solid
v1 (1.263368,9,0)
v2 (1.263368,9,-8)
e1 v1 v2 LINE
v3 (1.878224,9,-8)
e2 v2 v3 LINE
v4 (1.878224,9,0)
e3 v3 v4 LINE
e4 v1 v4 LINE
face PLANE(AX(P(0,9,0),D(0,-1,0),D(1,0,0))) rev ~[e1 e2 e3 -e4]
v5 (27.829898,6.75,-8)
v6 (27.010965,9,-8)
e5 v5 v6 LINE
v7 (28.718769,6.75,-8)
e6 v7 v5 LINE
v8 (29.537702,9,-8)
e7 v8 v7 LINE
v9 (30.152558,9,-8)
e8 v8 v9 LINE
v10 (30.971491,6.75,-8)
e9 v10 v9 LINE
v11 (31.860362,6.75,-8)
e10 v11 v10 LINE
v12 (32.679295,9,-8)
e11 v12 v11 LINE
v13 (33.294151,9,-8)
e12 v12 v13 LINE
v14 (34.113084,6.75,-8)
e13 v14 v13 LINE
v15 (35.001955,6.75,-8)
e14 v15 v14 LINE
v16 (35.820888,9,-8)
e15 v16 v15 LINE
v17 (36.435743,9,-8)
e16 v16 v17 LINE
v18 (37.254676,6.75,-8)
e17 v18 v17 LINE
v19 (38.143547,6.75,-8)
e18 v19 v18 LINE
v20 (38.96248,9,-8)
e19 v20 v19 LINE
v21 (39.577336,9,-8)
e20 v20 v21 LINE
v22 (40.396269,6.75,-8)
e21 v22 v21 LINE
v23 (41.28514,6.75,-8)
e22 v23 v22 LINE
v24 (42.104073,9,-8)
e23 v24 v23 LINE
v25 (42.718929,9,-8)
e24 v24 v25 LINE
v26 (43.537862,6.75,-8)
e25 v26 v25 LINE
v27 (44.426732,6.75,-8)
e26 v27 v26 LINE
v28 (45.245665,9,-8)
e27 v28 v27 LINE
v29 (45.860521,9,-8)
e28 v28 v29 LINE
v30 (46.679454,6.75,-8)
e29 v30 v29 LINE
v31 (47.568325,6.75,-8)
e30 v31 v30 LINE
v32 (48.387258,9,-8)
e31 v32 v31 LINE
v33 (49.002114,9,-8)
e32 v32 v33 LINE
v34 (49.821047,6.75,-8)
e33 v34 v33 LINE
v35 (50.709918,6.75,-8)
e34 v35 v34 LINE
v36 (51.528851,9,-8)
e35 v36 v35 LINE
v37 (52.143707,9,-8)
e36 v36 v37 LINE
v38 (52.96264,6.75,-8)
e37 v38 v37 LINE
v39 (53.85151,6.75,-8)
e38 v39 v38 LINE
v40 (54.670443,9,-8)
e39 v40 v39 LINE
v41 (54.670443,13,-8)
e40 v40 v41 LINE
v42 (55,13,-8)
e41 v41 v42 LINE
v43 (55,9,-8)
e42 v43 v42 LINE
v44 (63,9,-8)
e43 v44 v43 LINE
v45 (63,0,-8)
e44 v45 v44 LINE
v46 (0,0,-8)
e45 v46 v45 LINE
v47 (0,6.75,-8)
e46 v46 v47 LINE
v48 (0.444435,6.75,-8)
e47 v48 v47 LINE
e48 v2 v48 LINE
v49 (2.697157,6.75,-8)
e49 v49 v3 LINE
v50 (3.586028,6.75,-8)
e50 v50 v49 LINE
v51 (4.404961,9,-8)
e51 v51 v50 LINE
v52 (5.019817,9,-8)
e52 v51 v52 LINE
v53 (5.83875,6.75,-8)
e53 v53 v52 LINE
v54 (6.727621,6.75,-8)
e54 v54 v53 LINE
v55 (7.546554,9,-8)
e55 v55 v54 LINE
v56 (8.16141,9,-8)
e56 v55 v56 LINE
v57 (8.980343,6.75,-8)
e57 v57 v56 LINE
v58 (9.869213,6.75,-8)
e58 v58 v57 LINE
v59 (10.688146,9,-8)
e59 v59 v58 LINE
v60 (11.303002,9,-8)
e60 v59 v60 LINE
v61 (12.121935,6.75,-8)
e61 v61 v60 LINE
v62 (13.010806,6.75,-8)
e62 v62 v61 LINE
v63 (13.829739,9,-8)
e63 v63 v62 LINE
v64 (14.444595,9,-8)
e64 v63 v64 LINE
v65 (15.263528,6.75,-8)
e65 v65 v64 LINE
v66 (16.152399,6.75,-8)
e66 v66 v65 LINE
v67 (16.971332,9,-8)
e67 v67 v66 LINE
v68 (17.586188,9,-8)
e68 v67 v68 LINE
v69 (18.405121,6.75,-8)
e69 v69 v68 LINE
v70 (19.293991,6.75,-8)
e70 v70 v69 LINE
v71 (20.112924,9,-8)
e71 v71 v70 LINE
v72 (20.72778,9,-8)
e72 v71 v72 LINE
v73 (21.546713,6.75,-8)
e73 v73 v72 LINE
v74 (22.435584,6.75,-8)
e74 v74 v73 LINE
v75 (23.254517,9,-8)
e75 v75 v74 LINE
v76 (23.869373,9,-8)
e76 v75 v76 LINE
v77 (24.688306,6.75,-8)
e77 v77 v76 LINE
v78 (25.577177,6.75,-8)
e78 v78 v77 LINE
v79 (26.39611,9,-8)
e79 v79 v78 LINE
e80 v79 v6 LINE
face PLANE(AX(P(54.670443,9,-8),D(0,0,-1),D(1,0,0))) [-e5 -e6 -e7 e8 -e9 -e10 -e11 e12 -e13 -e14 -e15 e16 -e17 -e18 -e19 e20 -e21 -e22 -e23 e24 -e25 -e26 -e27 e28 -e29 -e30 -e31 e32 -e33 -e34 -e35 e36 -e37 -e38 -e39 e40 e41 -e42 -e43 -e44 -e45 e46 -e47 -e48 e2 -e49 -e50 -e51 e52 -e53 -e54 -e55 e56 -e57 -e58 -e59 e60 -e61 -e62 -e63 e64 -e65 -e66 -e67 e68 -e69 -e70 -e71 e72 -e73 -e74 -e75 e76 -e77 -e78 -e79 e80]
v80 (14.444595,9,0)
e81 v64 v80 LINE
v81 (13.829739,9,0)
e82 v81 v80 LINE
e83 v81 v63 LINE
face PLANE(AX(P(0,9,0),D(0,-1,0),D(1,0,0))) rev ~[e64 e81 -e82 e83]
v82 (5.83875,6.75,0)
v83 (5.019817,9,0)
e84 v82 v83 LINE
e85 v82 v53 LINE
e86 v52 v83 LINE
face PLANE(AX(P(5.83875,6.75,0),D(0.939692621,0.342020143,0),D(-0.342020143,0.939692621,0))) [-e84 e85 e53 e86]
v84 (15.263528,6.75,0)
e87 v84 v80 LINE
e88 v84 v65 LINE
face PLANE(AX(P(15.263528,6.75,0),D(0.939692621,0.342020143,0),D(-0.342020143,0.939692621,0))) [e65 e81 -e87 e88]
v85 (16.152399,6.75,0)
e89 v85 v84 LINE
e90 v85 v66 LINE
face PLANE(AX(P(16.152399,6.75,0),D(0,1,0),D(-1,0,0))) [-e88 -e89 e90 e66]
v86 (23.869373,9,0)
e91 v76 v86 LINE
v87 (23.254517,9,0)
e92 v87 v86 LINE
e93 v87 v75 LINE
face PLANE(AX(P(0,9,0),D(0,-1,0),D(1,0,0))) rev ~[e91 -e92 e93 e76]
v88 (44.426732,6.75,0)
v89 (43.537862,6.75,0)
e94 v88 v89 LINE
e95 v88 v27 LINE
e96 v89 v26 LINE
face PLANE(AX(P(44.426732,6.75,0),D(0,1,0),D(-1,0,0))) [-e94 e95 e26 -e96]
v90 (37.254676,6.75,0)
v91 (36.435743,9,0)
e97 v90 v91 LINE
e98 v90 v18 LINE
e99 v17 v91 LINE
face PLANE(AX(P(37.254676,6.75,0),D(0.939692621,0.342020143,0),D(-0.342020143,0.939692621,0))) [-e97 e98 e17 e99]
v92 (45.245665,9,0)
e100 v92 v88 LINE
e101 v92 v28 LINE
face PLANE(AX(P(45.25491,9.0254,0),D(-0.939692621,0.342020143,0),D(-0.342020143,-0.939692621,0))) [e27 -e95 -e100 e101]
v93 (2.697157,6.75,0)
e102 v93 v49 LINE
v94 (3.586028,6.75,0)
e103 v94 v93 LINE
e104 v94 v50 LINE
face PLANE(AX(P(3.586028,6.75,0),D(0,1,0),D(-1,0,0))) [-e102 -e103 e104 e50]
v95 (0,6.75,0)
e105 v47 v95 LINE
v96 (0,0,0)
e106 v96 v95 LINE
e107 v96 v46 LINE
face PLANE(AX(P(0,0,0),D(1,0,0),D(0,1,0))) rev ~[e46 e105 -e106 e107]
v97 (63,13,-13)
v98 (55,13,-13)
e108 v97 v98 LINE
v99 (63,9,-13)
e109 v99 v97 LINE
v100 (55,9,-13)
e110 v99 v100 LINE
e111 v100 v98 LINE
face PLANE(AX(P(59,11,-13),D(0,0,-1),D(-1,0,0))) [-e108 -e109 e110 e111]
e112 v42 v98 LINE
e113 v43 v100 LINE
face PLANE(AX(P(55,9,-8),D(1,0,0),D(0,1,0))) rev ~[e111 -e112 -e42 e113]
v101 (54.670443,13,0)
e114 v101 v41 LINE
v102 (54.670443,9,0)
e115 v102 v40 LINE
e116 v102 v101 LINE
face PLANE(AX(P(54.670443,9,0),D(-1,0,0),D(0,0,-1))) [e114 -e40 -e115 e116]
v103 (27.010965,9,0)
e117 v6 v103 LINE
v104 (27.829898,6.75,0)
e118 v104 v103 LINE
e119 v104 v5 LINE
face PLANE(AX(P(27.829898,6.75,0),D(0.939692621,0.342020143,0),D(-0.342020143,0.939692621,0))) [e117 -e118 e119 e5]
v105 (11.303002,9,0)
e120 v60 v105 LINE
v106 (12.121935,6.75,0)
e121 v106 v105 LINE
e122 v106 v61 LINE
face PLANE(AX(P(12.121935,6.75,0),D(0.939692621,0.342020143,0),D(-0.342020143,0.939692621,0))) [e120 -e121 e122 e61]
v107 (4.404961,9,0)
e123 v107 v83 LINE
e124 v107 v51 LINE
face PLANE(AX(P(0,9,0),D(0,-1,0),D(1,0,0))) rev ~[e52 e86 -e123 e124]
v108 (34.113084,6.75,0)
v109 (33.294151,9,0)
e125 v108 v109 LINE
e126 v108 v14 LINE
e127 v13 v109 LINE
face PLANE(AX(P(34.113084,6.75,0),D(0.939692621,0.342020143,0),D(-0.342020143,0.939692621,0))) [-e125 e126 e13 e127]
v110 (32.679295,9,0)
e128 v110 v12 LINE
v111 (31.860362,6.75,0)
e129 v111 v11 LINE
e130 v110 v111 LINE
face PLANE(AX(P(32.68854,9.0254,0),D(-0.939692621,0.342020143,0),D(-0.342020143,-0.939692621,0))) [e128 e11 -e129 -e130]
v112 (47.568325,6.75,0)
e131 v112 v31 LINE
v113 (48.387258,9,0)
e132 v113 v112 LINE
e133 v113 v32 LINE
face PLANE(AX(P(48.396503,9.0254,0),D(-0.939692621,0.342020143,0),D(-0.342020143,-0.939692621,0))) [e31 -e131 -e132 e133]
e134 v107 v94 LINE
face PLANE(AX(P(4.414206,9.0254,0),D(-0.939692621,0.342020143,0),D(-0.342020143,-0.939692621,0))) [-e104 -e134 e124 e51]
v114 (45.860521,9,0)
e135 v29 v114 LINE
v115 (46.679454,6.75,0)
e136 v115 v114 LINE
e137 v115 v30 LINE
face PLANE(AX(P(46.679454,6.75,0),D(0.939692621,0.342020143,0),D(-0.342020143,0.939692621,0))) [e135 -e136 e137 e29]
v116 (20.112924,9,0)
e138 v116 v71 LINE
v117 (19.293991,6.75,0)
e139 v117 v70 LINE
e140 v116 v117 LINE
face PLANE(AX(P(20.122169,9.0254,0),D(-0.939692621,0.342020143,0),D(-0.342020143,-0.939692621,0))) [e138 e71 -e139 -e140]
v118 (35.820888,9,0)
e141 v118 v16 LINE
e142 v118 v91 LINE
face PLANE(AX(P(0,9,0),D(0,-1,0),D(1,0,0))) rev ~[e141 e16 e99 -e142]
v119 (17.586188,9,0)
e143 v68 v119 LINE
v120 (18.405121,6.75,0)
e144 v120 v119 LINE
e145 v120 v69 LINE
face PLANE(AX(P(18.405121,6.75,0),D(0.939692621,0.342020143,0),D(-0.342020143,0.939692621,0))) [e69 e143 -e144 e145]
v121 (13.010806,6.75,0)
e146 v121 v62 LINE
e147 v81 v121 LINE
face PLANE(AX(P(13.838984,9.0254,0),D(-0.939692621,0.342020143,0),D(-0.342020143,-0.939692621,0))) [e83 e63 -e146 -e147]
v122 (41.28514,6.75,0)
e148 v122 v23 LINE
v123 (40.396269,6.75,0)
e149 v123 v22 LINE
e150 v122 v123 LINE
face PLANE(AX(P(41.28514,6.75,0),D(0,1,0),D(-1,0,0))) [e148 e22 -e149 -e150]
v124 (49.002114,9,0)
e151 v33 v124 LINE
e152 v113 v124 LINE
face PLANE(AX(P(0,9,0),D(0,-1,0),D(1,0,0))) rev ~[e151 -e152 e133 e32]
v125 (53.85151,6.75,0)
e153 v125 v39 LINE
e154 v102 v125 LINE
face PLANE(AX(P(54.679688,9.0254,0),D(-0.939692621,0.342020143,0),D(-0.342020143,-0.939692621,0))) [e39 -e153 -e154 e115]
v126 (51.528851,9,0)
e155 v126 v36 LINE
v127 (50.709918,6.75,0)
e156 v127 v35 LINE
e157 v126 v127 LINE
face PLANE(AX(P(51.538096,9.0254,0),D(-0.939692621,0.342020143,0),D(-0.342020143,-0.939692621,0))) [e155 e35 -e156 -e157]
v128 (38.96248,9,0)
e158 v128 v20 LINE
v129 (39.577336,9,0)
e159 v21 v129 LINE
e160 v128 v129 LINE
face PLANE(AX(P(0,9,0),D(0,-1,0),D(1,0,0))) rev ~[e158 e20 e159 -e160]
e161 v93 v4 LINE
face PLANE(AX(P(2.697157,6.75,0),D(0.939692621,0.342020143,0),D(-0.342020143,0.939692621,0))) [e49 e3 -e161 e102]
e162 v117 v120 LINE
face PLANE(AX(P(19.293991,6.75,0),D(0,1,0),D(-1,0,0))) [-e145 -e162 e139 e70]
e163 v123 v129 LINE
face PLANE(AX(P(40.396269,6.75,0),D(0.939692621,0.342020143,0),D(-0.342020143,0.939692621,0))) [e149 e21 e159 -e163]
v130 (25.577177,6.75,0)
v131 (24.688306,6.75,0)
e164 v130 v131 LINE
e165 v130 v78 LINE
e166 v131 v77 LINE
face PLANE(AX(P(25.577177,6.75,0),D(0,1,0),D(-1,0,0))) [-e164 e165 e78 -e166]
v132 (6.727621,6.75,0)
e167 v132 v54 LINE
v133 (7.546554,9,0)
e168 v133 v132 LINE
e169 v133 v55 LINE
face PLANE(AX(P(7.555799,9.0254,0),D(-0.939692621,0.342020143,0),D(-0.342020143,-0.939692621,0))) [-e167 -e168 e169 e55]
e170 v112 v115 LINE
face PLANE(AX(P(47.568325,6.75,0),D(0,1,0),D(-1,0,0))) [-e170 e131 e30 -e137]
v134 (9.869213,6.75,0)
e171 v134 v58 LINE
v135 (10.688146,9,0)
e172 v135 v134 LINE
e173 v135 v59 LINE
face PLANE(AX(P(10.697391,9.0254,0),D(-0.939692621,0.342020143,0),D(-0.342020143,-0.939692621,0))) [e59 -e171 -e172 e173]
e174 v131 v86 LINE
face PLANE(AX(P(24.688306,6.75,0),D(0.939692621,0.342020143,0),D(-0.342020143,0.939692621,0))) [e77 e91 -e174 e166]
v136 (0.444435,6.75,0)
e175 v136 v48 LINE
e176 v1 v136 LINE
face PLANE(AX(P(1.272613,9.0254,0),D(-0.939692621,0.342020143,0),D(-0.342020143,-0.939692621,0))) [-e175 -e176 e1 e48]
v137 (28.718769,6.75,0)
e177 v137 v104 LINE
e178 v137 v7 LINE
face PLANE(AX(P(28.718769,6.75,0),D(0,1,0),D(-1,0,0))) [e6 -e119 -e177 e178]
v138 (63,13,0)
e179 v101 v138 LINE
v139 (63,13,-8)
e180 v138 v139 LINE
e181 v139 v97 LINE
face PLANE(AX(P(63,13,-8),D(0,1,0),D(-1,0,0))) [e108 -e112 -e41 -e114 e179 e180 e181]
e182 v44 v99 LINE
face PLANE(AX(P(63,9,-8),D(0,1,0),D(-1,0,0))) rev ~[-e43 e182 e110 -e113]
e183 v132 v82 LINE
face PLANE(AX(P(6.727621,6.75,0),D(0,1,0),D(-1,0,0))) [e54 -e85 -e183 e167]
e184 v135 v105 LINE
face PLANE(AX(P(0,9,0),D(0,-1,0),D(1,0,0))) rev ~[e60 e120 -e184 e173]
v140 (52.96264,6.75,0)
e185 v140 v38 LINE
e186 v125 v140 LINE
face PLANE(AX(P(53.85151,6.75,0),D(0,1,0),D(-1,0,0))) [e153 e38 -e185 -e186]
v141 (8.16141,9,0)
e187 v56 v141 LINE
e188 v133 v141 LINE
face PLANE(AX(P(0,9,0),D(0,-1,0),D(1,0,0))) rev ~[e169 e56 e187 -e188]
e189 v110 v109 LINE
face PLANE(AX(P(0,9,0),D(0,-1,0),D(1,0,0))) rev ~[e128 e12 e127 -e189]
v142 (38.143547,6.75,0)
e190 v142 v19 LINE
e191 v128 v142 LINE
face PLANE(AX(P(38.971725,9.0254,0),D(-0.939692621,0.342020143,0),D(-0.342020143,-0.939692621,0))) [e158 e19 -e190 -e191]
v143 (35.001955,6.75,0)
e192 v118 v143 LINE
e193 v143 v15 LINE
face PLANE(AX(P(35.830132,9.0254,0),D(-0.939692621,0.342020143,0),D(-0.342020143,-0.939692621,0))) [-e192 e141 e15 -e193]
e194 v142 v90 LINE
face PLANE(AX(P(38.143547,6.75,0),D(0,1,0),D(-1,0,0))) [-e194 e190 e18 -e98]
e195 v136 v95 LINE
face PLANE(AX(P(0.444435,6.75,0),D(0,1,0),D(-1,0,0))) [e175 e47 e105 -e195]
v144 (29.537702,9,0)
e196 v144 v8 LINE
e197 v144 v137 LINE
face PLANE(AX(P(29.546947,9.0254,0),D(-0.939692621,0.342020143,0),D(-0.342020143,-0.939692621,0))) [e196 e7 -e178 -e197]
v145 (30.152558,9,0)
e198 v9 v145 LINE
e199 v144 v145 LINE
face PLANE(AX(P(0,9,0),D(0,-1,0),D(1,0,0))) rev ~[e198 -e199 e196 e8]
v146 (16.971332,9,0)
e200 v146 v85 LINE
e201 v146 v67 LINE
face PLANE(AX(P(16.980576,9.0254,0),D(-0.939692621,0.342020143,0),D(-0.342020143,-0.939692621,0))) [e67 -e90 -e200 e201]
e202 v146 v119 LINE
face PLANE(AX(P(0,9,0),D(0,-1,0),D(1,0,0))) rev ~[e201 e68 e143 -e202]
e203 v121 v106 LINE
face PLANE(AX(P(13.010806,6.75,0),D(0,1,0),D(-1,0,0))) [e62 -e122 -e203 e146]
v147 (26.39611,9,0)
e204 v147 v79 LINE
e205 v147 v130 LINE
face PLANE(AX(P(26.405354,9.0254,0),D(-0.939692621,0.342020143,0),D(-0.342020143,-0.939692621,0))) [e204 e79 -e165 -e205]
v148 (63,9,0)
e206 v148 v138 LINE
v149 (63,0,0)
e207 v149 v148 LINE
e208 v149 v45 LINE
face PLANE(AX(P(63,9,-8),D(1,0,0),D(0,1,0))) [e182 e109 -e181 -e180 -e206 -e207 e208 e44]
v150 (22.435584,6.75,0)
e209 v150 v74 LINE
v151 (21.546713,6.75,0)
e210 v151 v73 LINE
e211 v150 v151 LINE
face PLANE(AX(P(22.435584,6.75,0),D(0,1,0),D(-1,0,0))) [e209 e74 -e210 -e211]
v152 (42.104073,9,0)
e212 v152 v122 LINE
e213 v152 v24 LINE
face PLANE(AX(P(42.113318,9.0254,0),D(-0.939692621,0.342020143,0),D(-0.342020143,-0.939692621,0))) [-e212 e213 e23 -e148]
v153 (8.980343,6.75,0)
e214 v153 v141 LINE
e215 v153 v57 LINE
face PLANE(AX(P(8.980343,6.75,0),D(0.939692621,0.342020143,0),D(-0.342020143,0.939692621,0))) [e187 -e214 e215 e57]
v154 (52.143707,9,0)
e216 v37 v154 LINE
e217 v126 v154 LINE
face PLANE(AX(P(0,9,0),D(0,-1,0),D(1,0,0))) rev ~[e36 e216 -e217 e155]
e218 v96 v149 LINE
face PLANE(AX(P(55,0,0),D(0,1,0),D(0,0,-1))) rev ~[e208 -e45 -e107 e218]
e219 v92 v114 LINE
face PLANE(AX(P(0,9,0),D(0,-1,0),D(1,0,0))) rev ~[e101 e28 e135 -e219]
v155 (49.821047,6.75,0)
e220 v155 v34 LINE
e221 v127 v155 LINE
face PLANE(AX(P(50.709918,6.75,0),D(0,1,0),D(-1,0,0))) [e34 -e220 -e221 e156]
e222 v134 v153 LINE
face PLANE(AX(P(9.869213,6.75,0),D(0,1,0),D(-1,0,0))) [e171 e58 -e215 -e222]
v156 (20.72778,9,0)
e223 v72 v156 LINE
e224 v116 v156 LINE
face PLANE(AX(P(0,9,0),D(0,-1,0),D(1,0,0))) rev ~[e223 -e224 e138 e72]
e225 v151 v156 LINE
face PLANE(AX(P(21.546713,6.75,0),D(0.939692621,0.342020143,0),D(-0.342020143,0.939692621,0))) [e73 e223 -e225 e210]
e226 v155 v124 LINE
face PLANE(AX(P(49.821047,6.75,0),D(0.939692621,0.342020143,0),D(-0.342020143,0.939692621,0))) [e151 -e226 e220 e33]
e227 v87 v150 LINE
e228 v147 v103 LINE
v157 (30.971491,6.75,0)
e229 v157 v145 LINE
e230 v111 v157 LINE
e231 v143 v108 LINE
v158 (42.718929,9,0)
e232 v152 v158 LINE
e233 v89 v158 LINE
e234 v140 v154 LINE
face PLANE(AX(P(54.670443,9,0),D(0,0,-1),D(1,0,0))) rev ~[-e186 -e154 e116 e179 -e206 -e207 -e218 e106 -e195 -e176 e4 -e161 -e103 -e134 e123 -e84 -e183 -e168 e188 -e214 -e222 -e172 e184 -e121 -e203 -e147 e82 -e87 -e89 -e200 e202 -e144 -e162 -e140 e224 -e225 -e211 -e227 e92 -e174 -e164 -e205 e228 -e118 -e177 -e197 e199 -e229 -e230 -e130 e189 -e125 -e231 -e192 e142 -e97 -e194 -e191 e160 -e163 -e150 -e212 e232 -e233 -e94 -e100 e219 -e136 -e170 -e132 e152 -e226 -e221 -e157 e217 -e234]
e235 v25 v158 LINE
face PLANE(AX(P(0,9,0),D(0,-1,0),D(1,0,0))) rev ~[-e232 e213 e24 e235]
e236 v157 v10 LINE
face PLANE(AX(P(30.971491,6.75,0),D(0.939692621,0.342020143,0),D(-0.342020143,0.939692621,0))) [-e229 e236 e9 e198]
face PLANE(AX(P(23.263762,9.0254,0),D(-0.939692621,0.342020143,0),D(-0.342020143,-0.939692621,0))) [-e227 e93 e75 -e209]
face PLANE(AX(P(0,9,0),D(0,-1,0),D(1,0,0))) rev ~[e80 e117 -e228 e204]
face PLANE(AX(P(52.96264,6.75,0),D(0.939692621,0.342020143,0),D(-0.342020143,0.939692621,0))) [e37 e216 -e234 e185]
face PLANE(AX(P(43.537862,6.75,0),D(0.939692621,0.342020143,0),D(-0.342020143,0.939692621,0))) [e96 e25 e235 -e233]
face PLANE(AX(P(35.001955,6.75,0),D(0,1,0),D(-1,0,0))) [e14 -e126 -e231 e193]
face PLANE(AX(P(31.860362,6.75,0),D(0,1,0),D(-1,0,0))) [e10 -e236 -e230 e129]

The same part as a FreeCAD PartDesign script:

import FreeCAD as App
import Part
import Sketcher
Q = App.Units.Quantity

doc = App.newDocument("Part")
body = doc.addObject("PartDesign::Body", "Body")

# Sketch on XY plane
sketch1 = doc.addObject("Sketcher::SketchObject", "Sketch")
body.addObject(sketch1)
sketch1.AttachmentSupport = (doc.XY_Plane, [""])
sketch1.MapMode = "FlatFace"
sketch1.addGeometry([
    Part.LineSegment(App.Vector(0, 9, 0), App.Vector(0, 0, 0)),
    Part.LineSegment(App.Vector(0, 0, 0), App.Vector(55, 0, 0)),
    Part.LineSegment(App.Vector(55, 0, 0), App.Vector(55, 9, 0)),
    Part.LineSegment(App.Vector(55, 9, 0), App.Vector(0, 9, 0)),
], False)
sketch1.addConstraint([
    Sketcher.Constraint("Coincident", 0, 2, 1, 1),
    Sketcher.Constraint("Coincident", 1, 2, 2, 1),
    Sketcher.Constraint("Coincident", 2, 2, 3, 1),
    Sketcher.Constraint("Coincident", 3, 2, 0, 1),
    Sketcher.Constraint("Vertical", 0),
    Sketcher.Constraint("Horizontal", 1),
    Sketcher.Constraint("Vertical", 2),
    Sketcher.Constraint("Horizontal", 3),
    Sketcher.Constraint("Coincident", 0, 2, -1, 1),
    Sketcher.Constraint("DistanceX", 1, 1, 1, 2, 55.0),
    Sketcher.Constraint("DistanceY", 0, 2, 0, 1, 9.0),
])
pad1 = doc.addObject("PartDesign::Pad", "Pad")
body.addObject(pad1)
pad1.Profile = sketch1
pad1.Length = 8
pad1.Reversed = True

# Sketch on XY plane
sketch2 = doc.addObject("Sketcher::SketchObject", "Sketch001")
body.addObject(sketch2)
sketch2.AttachmentSupport = (doc.XY_Plane, [""])
sketch2.MapMode = "FlatFace"
sketch2.addGeometry([
    Part.LineSegment(App.Vector(-0.444435, 6.75, 0), App.Vector(0.444435, 6.75, 0)),
    Part.LineSegment(App.Vector(0.444435, 6.75, 0), App.Vector(1.272613, 9.0254, 0)),
    Part.LineSegment(App.Vector(1.272613, 9.0254, 0), App.Vector(-1.272613, 9.0254, 0)),
    Part.LineSegment(App.Vector(-1.272613, 9.0254, 0), App.Vector(-0.444435, 6.75, 0)),
], False)
sketch2.addConstraint([
    Sketcher.Constraint("Coincident", 0, 2, 1, 1),
    Sketcher.Constraint("Coincident", 1, 2, 2, 1),
    Sketcher.Constraint("Coincident", 2, 2, 3, 1),
    Sketcher.Constraint("Coincident", 3, 2, 0, 1),
    Sketcher.Constraint("Horizontal", 0),
    Sketcher.Constraint("Horizontal", 2),
    Sketcher.Constraint("Equal", 1, 3),
    Sketcher.Constraint("Angle", 1, Q("70 deg")),
    Sketcher.Constraint("DistanceY", -1, 1, 0, 2, 6.75),
    Sketcher.Constraint("DistanceX", 0, 1, 0, 2, 0.888871),
    Sketcher.Constraint("DistanceY", -1, 1, 1, 2, 9.0254),
    Sketcher.Constraint("DistanceX", -1, 1, 0, 2, 0.444435),
])
pocket1 = doc.addObject("PartDesign::Pocket", "Pocket")
body.addObject(pocket1)
pocket1.Profile = sketch2
pocket1.Type = "ThroughAll"
doc.recompute()

linearpattern = doc.addObject("PartDesign::LinearPattern", "LinearPattern")
body.addObject(linearpattern)
linearpattern.Originals = [pocket1]
linearpattern.Direction = (doc.X_Axis, [""])
linearpattern.Mode = "offset"
linearpattern.Offset = 3.141593
linearpattern.Occurrences = 18
body.Tip = linearpattern

# Sketch on YZ plane
sketch3 = doc.addObject("Sketcher::SketchObject", "Sketch002")
body.addObject(sketch3)
sketch3.AttachmentSupport = (doc.YZ_Plane, [""])
sketch3.MapMode = "FlatFace"
sketch3.AttachmentOffset = App.Placement(App.Vector(0, 0, 55), App.Rotation())
sketch3.addGeometry([
    Part.LineSegment(App.Vector(9, 0, 0), App.Vector(0, 0, 0)),
    Part.LineSegment(App.Vector(0, 0, 0), App.Vector(0, -8, 0)),
    Part.LineSegment(App.Vector(0, -8, 0), App.Vector(9, -8, 0)),
    Part.LineSegment(App.Vector(9, -8, 0), App.Vector(9, 0, 0)),
], False)
sketch3.addConstraint([
    Sketcher.Constraint("Coincident", 0, 2, 1, 1),
    Sketcher.Constraint("Coincident", 1, 2, 2, 1),
    Sketcher.Constraint("Coincident", 2, 2, 3, 1),
    Sketcher.Constraint("Coincident", 3, 2, 0, 1),
    Sketcher.Constraint("Horizontal", 0),
    Sketcher.Constraint("Vertical", 1),
    Sketcher.Constraint("Horizontal", 2),
    Sketcher.Constraint("Vertical", 3),
    Sketcher.Constraint("Coincident", 0, 2, -1, 1),
    Sketcher.Constraint("DistanceX", 0, 2, 0, 1, 9.0),
    Sketcher.Constraint("DistanceY", 1, 2, 1, 1, 8.0),
])
pad2 = doc.addObject("PartDesign::Pad", "Pad001")
body.addObject(pad2)
pad2.Profile = sketch3
pad2.Length = 8

# Sketch on XZ plane
sketch4 = doc.addObject("Sketcher::SketchObject", "Sketch003")
body.addObject(sketch4)
sketch4.AttachmentSupport = (doc.XZ_Plane, [""])
sketch4.MapMode = "FlatFace"
sketch4.AttachmentOffset = App.Placement(App.Vector(0, 0, -9), App.Rotation())
sketch4.addGeometry([
    Part.LineSegment(App.Vector(54.670443, -8, 0), App.Vector(54.670443, 0, 0)),
    Part.LineSegment(App.Vector(54.670443, 0, 0), App.Vector(63, 0, 0)),
    Part.LineSegment(App.Vector(63, 0, 0), App.Vector(63, -8, 0)),
    Part.LineSegment(App.Vector(63, -8, 0), App.Vector(54.670443, -8, 0)),
], False)
sketch4.addConstraint([
    Sketcher.Constraint("Coincident", 0, 2, 1, 1),
    Sketcher.Constraint("Coincident", 1, 2, 2, 1),
    Sketcher.Constraint("Coincident", 2, 2, 3, 1),
    Sketcher.Constraint("Coincident", 3, 2, 0, 1),
    Sketcher.Constraint("Vertical", 0),
    Sketcher.Constraint("Horizontal", 1),
    Sketcher.Constraint("Vertical", 2),
    Sketcher.Constraint("Horizontal", 3),
    Sketcher.Constraint("PointOnObject", 0, 2, -1),
    Sketcher.Constraint("DistanceY", 0, 1, 0, 2, 8.0),
    Sketcher.Constraint("DistanceX", -1, 1, 1, 2, 63.0),
    Sketcher.Constraint("DistanceX", 1, 1, 1, 2, 8.329557),
])
pad3 = doc.addObject("PartDesign::Pad", "Pad002")
body.addObject(pad3)
pad3.Profile = sketch4
pad3.Length = 4
pad3.Reversed = True

# Sketch on XY plane
sketch5 = doc.addObject("Sketcher::SketchObject", "Sketch004")
body.addObject(sketch5)
sketch5.AttachmentSupport = (doc.XY_Plane, [""])
sketch5.MapMode = "FlatFace"
sketch5.AttachmentOffset = App.Placement(App.Vector(0, 0, -8), App.Rotation())
sketch5.addGeometry([
    Part.LineSegment(App.Vector(63, 13, 0), App.Vector(63, 9, 0)),
    Part.LineSegment(App.Vector(63, 9, 0), App.Vector(55, 9, 0)),
    Part.LineSegment(App.Vector(55, 9, 0), App.Vector(55, 13, 0)),
    Part.LineSegment(App.Vector(55, 13, 0), App.Vector(63, 13, 0)),
], False)
sketch5.addConstraint([
    Sketcher.Constraint("Coincident", 0, 2, 1, 1),
    Sketcher.Constraint("Coincident", 1, 2, 2, 1),
    Sketcher.Constraint("Coincident", 2, 2, 3, 1),
    Sketcher.Constraint("Coincident", 3, 2, 0, 1),
    Sketcher.Constraint("Vertical", 0),
    Sketcher.Constraint("Horizontal", 1),
    Sketcher.Constraint("Vertical", 2),
    Sketcher.Constraint("Horizontal", 3),
    Sketcher.Constraint("DistanceX", 1, 2, 1, 1, 8.0),
    Sketcher.Constraint("DistanceY", 0, 2, 0, 1, 4.0),
    Sketcher.Constraint("DistanceX", -1, 1, 0, 2, 63.0),
    Sketcher.Constraint("DistanceY", -1, 1, 0, 2, 9.0),
])
pad4 = doc.addObject("PartDesign::Pad", "Pad003")
body.addObject(pad4)
pad4.Profile = sketch5
pad4.Length = 5
pad4.Reversed = True

doc.recompute()
